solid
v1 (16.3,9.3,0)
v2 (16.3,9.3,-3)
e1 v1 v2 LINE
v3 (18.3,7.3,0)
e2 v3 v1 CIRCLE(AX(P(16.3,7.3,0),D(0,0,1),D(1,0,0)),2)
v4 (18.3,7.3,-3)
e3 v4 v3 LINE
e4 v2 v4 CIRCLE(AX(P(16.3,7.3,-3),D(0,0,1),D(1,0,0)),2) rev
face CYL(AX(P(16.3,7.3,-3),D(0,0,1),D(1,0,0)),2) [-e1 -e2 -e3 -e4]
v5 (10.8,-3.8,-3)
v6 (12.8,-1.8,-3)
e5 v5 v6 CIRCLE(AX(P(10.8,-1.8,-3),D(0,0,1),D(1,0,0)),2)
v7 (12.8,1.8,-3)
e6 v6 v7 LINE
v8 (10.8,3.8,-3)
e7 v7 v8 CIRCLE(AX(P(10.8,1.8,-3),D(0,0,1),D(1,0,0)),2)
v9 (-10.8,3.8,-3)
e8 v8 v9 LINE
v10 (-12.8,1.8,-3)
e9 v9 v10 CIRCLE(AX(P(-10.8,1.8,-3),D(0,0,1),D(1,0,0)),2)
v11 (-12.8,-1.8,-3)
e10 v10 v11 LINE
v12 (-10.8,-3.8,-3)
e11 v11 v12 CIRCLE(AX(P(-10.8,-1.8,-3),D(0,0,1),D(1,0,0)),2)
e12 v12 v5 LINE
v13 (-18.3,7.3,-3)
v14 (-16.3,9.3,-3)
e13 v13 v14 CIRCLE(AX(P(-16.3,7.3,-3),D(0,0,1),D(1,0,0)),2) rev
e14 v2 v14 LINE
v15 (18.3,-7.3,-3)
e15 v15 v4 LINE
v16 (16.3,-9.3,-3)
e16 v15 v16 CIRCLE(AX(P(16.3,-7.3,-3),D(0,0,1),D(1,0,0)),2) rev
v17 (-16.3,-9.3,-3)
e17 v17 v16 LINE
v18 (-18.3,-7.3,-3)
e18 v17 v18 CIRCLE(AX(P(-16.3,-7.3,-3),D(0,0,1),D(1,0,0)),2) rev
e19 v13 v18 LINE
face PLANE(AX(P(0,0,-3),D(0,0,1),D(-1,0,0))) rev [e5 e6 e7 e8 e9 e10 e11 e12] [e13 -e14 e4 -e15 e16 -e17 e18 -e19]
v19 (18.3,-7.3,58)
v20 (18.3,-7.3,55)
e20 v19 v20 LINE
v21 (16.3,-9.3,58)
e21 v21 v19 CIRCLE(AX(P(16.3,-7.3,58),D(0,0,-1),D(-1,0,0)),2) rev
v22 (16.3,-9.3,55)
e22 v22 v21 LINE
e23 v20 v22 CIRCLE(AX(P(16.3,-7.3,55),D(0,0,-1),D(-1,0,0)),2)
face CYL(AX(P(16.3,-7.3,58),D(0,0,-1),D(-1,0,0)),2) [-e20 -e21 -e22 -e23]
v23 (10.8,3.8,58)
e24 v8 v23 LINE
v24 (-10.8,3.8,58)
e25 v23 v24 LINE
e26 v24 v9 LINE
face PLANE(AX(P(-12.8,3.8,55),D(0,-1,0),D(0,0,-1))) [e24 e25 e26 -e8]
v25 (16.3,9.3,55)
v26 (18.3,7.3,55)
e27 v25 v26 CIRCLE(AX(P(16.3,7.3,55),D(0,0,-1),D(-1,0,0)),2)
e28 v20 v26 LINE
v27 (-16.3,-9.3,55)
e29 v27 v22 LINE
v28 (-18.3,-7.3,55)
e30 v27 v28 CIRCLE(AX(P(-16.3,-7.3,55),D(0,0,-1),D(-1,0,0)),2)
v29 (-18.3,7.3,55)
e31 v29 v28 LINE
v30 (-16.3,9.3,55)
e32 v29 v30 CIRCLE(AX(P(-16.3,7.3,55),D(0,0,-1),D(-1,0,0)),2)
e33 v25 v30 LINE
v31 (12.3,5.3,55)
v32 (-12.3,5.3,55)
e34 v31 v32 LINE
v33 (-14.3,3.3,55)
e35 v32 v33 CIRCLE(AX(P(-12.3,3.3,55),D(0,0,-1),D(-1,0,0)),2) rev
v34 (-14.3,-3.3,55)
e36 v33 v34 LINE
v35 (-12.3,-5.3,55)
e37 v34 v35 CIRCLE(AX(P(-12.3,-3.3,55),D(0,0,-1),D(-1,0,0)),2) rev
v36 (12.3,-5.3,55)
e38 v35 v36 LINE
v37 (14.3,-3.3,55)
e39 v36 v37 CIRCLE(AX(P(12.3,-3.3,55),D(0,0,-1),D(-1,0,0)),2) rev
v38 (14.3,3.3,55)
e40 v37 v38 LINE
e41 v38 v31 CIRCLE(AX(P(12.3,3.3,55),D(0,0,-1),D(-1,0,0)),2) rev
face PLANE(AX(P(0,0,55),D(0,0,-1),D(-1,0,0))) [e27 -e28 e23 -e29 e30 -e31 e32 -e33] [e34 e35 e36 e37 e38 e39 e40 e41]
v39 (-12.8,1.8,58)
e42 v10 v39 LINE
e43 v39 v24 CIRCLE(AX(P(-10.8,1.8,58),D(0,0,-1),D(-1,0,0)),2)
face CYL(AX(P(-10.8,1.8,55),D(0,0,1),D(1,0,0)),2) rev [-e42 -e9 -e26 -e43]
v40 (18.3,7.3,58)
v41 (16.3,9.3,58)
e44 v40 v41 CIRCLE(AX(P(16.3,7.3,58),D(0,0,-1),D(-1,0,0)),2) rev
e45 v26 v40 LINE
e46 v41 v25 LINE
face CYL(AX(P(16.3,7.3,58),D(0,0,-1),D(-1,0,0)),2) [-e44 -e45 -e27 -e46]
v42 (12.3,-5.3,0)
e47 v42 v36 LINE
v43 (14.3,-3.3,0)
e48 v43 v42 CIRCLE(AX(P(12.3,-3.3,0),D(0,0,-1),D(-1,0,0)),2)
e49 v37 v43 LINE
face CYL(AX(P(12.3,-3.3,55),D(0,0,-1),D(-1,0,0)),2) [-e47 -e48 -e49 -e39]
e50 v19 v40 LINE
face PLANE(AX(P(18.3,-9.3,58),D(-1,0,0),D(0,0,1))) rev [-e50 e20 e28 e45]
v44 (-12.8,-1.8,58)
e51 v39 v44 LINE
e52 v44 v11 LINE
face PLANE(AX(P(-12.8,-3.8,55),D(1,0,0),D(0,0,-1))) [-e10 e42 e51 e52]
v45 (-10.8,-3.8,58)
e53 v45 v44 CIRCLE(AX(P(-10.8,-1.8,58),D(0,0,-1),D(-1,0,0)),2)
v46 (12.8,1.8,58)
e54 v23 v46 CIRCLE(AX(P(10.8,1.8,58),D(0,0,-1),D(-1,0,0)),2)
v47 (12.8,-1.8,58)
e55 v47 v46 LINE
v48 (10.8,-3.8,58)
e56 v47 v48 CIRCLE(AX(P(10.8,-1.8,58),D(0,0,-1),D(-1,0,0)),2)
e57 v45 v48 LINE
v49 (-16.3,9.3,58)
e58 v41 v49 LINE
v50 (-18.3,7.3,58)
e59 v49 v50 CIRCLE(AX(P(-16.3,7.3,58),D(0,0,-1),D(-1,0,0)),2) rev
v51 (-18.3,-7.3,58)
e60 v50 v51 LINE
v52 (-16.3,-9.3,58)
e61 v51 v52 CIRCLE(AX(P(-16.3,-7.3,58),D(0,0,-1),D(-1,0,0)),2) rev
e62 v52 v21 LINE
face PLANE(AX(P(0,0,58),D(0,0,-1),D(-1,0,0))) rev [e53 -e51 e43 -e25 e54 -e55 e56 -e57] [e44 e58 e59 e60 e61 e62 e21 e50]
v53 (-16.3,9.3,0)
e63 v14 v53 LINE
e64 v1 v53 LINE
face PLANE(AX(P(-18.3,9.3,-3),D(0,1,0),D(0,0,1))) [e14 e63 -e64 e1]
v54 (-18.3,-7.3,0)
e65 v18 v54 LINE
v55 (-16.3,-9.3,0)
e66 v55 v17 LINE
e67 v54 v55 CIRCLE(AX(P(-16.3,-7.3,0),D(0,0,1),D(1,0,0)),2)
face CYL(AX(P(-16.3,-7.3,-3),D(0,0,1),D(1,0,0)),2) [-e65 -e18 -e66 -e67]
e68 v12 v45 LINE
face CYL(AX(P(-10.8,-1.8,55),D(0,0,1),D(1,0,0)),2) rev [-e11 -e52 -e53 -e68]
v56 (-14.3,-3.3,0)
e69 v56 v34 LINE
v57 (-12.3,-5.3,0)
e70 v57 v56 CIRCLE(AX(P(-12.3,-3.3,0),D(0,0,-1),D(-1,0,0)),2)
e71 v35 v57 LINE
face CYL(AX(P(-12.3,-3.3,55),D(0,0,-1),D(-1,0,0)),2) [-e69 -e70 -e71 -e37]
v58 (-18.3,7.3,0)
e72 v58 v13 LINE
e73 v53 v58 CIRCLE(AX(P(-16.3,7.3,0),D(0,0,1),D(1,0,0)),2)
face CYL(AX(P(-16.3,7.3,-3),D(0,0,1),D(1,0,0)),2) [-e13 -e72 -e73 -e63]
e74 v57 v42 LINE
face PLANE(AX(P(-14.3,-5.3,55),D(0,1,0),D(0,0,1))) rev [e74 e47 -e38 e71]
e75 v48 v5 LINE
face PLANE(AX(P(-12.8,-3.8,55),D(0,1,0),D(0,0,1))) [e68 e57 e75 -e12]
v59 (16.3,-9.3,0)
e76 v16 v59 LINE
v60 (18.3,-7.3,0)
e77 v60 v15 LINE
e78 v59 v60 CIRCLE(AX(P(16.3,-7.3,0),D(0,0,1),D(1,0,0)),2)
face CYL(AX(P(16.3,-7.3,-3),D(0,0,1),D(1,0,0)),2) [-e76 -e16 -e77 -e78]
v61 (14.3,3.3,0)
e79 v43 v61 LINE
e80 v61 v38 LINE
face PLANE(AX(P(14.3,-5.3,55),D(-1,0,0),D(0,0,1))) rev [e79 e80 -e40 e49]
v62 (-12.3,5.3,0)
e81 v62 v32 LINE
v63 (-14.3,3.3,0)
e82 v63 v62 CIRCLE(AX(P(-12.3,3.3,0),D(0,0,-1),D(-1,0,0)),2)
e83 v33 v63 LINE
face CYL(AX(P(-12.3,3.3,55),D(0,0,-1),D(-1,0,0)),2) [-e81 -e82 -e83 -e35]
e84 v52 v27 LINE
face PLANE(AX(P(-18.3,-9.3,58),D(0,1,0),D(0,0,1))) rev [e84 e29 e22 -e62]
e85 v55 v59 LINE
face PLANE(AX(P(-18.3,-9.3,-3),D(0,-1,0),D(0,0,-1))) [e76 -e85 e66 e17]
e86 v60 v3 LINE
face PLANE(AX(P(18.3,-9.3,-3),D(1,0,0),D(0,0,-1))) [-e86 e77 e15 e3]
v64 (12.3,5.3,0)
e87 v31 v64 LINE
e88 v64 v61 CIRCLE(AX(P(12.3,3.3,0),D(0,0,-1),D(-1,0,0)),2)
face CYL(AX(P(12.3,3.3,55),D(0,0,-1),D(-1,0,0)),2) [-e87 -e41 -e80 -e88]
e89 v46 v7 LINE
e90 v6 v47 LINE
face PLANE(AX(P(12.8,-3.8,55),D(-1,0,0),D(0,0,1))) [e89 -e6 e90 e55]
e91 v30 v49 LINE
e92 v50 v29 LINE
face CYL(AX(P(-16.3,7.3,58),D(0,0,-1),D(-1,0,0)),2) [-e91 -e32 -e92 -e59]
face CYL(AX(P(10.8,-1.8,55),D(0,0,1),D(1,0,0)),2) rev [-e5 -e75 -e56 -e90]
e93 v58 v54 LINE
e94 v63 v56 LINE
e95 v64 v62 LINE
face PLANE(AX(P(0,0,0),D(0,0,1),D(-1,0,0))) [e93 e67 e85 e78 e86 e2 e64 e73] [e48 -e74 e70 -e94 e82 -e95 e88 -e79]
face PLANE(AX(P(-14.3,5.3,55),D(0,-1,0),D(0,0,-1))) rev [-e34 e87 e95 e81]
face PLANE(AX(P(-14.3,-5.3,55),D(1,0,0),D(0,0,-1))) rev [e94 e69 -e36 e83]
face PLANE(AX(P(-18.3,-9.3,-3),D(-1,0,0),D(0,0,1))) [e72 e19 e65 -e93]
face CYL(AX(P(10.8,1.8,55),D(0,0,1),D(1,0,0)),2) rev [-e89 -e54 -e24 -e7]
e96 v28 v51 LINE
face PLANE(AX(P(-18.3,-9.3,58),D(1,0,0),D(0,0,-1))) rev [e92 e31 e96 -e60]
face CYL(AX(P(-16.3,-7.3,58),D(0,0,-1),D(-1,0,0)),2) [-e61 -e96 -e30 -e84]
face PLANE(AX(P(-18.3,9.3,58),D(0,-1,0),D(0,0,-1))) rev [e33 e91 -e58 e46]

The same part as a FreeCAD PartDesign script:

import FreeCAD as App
import Part
import Sketcher

V = App.Vector
Q = App.Units.Quantity


def edges_at(feature, points):
    """Names of the edges that pass closest to the given points."""
    edges = feature.Shape.Edges
    near = lambda p: min(range(len(edges)), key=lambda i: edges[i].distToShape(Part.Vertex(*p))[0])
    return sorted({f"Edge{near(p) + 1}" for p in points})

doc = App.newDocument("Part")
body = doc.addObject("PartDesign::Body", "Body")

sketch1 = body.newObject("Sketcher::SketchObject", "Sketch")
sketch1.AttachmentSupport = (doc.getObject("XY_Plane"), [""])
sketch1.MapMode = "FlatFace"
sketch1.addGeometry(Part.LineSegment(V(-14, 5, 0), V(-14, -5, 0)), False)
sketch1.addGeometry(Part.LineSegment(V(-14, -5, 0), V(14, -5, 0)), False)
sketch1.addGeometry(Part.LineSegment(V(14, -5, 0), V(14, 5, 0)), False)
sketch1.addGeometry(Part.LineSegment(V(14, 5, 0), V(-14, 5, 0)), False)
sketch1.addGeometry(Part.LineSegment(V(13, -4, 0), V(-13, -4, 0)), False)
sketch1.addGeometry(Part.LineSegment(V(-13, -4, 0), V(-13, 4, 0)), False)
sketch1.addGeometry(Part.LineSegment(V(-13, 4, 0), V(13, 4, 0)), False)
sketch1.addGeometry(Part.LineSegment(V(13, 4, 0), V(13, -4, 0)), False)
sketch1.addConstraint(Sketcher.Constraint("Coincident", 0, 2, 1, 1))
sketch1.addConstraint(Sketcher.Constraint("Coincident", 1, 2, 2, 1))
sketch1.addConstraint(Sketcher.Constraint("Coincident", 2, 2, 3, 1))
sketch1.addConstraint(Sketcher.Constraint("Coincident", 3, 2, 0, 1))
sketch1.addConstraint(Sketcher.Constraint("Coincident", 4, 2, 5, 1))
sketch1.addConstraint(Sketcher.Constraint("Coincident", 5, 2, 6, 1))
sketch1.addConstraint(Sketcher.Constraint("Coincident", 6, 2, 7, 1))
sketch1.addConstraint(Sketcher.Constraint("Coincident", 7, 2, 4, 1))
sketch1.addConstraint(Sketcher.Constraint("Vertical", 0))
sketch1.addConstraint(Sketcher.Constraint("Horizontal", 1))
sketch1.addConstraint(Sketcher.Constraint("Vertical", 2))
sketch1.addConstraint(Sketcher.Constraint("Horizontal", 3))
sketch1.addConstraint(Sketcher.Constraint("Horizontal", 4))
sketch1.addConstraint(Sketcher.Constraint("Vertical", 5))
sketch1.addConstraint(Sketcher.Constraint("Horizontal", 6))
sketch1.addConstraint(Sketcher.Constraint("Vertical", 7))
sketch1.addConstraint(Sketcher.Constraint("Symmetric", 0, 2, 2, 2, -1, 1))
sketch1.addConstraint(Sketcher.Constraint("Symmetric", 4, 2, 6, 2, -1, 1))
sketch1.addConstraint(Sketcher.Constraint("DistanceX", 1, 1, 1, 2, Q("28.6 mm")))
sketch1.addConstraint(Sketcher.Constraint("DistanceX", 4, 2, 4, 1, Q("25.6 mm")))
sketch1.addConstraint(Sketcher.Constraint("DistanceY", 0, 2, 0, 1, Q("10.6 mm")))
sketch1.addConstraint(Sketcher.Constraint("DistanceY", 5, 1, 5, 2, Q("7.6 mm")))
pad1 = body.newObject("PartDesign::Pad", "Pad")
pad1.Profile = sketch1
pad1.Length = 55

sketch2 = body.newObject("Sketcher::SketchObject", "Sketch001")
sketch2.AttachmentSupport = (doc.getObject("XY_Plane"), [""])
sketch2.MapMode = "FlatFace"
sketch2.AttachmentOffset = App.Placement(V(0, 0, 55), App.Rotation())
sketch2.addGeometry(Part.LineSegment(V(-18, 9, 0), V(-18, -9, 0)), False)
sketch2.addGeometry(Part.LineSegment(V(-18, -9, 0), V(18, -9, 0)), False)
sketch2.addGeometry(Part.LineSegment(V(18, -9, 0), V(18, 9, 0)), False)
sketch2.addGeometry(Part.LineSegment(V(18, 9, 0), V(-18, 9, 0)), False)
sketch2.addGeometry(Part.LineSegment(V(13, -4, 0), V(-13, -4, 0)), False)
sketch2.addGeometry(Part.LineSegment(V(-13, -4, 0), V(-13, 4, 0)), False)
sketch2.addGeometry(Part.LineSegment(V(-13, 4, 0), V(13, 4, 0)), False)
sketch2.addGeometry(Part.LineSegment(V(13, 4, 0), V(13, -4, 0)), False)
sketch2.addConstraint(Sketcher.Constraint("Coincident", 0, 2, 1, 1))
sketch2.addConstraint(Sketcher.Constraint("Coincident", 1, 2, 2, 1))
sketch2.addConstraint(Sketcher.Constraint("Coincident", 2, 2, 3, 1))
sketch2.addConstraint(Sketcher.Constraint("Coincident", 3, 2, 0, 1))
sketch2.addConstraint(Sketcher.Constraint("Coincident", 4, 2, 5, 1))
sketch2.addConstraint(Sketcher.Constraint("Coincident", 5, 2, 6, 1))
sketch2.addConstraint(Sketcher.Constraint("Coincident", 6, 2, 7, 1))
sketch2.addConstraint(Sketcher.Constraint("Coincident", 7, 2, 4, 1))
sketch2.addConstraint(Sketcher.Constraint("Vertical", 0))
sketch2.addConstraint(Sketcher.Constraint("Horizontal", 1))
sketch2.addConstraint(Sketcher.Constraint("Vertical", 2))
sketch2.addConstraint(Sketcher.Constraint("Horizontal", 3))
sketch2.addConstraint(Sketcher.Constraint("Horizontal", 4))
sketch2.addConstraint(Sketcher.Constraint("Vertical", 5))
sketch2.addConstraint(Sketcher.Constraint("Horizontal", 6))
sketch2.addConstraint(Sketcher.Constraint("Vertical", 7))
sketch2.addConstraint(Sketcher.Constraint("Symmetric", 0, 2, 2, 2, -1, 1))
sketch2.addConstraint(Sketcher.Constraint("Symmetric", 4, 2, 6, 2, -1, 1))
sketch2.addConstraint(Sketcher.Constraint("DistanceX", 1, 1, 1, 2, Q("36.6 mm")))
sketch2.addConstraint(Sketcher.Constraint("DistanceX", 4, 2, 4, 1, Q("25.6 mm")))
sketch2.addConstraint(Sketcher.Constraint("DistanceY", 0, 2, 0, 1, Q("18.6 mm")))
sketch2.addConstraint(Sketcher.Constraint("DistanceY", 5, 1, 5, 2, Q("7.6 mm")))
pad2 = body.newObject("PartDesign::Pad", "Pad001")
pad2.Profile = sketch2
pad2.Length = 3
doc.recompute()

fillet = body.newObject("PartDesign::Fillet", "Fillet")
fillet.Base = (pad2, edges_at(pad2, [
    (18.3, -9.3, 56.5),
    (18.3, 9.3, 56.5),
    (-18.3, 9.3, 56.5),
    (-18.3, -9.3, 56.5),
]))
fillet.Radius = 2
doc.recompute()

fillet2 = body.newObject("PartDesign::Fillet", "Fillet001")
fillet2.Base = (fillet, edges_at(fillet, [
    (14.3, -5.3, 27.5),
    (-14.3, -5.3, 27.5),
    (-14.3, 5.3, 27.5),
    (14.3, 5.3, 27.5),
]))
fillet2.Radius = 2
doc.recompute()

datumplane = body.newObject("PartDesign::Plane", "DatumPlane")
datumplane.AttachmentSupport = (doc.getObject("XY_Plane"), [""])
datumplane.MapMode = "FlatFace"
datumplane.AttachmentOffset = App.Placement(V(0, 0, 27.5), App.Rotation())
mirrored = body.newObject("PartDesign::Mirrored", "Mirrored")
mirrored.Originals = [pad2]
mirrored.MirrorPlane = (datumplane, [""])
body.Tip = mirrored
doc.recompute()

fillet3 = body.newObject("PartDesign::Fillet", "Fillet002")
fillet3.Base = (mirrored, edges_at(mirrored, [
    (18.3, -9.3, -1.5),
    (18.3, 9.3, -1.5),
    (-18.3, 9.3, -1.5),
    (-18.3, -9.3, -1.5),
]))
fillet3.Radius = 2
doc.recompute()

fillet4 = body.newObject("PartDesign::Fillet", "Fillet003")
fillet4.Base = (fillet3, edges_at(fillet3, [
    (12.8, -3.8, 27.5),
    (12.8, 3.8, 27.5),
    (-12.8, 3.8, 27.5),
    (-12.8, -3.8, 27.5),
]))
fillet4.Radius = 2

doc.recompute()
